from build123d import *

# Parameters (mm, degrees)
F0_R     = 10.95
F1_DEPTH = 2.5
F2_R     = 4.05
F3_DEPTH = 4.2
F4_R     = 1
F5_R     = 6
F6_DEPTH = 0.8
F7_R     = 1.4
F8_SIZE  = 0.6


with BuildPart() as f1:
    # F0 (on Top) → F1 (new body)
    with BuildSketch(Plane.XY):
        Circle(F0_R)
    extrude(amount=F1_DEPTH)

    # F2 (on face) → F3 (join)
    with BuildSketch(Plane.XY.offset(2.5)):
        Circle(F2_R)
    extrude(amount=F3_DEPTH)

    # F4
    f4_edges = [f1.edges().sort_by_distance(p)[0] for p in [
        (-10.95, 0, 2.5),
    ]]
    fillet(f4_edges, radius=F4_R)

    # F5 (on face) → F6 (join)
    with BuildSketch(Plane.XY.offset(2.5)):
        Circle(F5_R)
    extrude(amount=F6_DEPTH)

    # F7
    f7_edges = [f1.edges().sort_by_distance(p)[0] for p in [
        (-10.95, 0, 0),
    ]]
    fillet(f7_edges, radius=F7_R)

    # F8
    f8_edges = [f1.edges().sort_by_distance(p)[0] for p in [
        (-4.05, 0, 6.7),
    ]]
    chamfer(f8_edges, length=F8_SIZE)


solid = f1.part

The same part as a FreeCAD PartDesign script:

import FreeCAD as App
import Part
import Sketcher
Q = App.Units.Quantity


def edges_at(feature, points):
    """Names of the edges that pass closest to the given points."""
    edges = feature.Shape.Edges
    near = lambda p: min(range(len(edges)), key=lambda i: edges[i].distToShape(Part.Vertex(*p))[0])
    return sorted({f"Edge{near(p) + 1}" for p in points})

doc = App.newDocument("Part")
body = doc.addObject("PartDesign::Body", "Body")

# Sketch on XY plane
sketch1 = body.newObject("Sketcher::SketchObject", "Sketch")
sketch1.AttachmentSupport = (doc.getObject("XY_Plane"), [""])
sketch1.MapMode = "FlatFace"
sketch1.addGeometry(Part.Circle(App.Vector(0, 0, 0), App.Vector(0, 0, 1), 10.95), False)
sketch1.addConstraint(Sketcher.Constraint("Coincident", 0, 3, -1, 1))
sketch1.addConstraint(Sketcher.Constraint("Diameter", 0, Q("21.9 mm")))
pad1 = body.newObject("PartDesign::Pad", "Pad")
pad1.Profile = sketch1
pad1.Length = 2.5

# Sketch on XY plane
sketch2 = body.newObject("Sketcher::SketchObject", "Sketch001")
sketch2.AttachmentSupport = (doc.getObject("XY_Plane"), [""])
sketch2.MapMode = "FlatFace"
sketch2.AttachmentOffset = App.Placement(App.Vector(0, 0, 2.5), App.Rotation())
sketch2.addGeometry(Part.Circle(App.Vector(0, 0, 0), App.Vector(0, 0, 1), 4.05), False)
sketch2.addConstraint(Sketcher.Constraint("Coincident", 0, 3, -1, 1))
sketch2.addConstraint(Sketcher.Constraint("Diameter", 0, Q("8.1 mm")))
pad2 = body.newObject("PartDesign::Pad", "Pad001")
pad2.Profile = sketch2
pad2.Length = 4.2
doc.recompute()

fillet = body.newObject("PartDesign::Fillet", "Fillet")
fillet.Base = (pad2, edges_at(pad2, [(-10.95, 0, 2.5)]))
fillet.Radius = 1

# Sketch on XY plane
sketch3 = body.newObject("Sketcher::SketchObject", "Sketch002")
sketch3.AttachmentSupport = (doc.getObject("XY_Plane"), [""])
sketch3.MapMode = "FlatFace"
sketch3.AttachmentOffset = App.Placement(App.Vector(0, 0, 2.5), App.Rotation())
sketch3.addGeometry(Part.Circle(App.Vector(0, 0, 0), App.Vector(0, 0, 1), 6), False)
sketch3.addConstraint(Sketcher.Constraint("Coincident", 0, 3, -1, 1))
sketch3.addConstraint(Sketcher.Constraint("Diameter", 0, Q("12 mm")))
pad3 = body.newObject("PartDesign::Pad", "Pad002")
pad3.Profile = sketch3
pad3.Length = 0.8
doc.recompute()

fillet2 = body.newObject("PartDesign::Fillet", "Fillet001")
fillet2.Base = (pad3, edges_at(pad3, [(-10.95, 0, 0)]))
fillet2.Radius = 1.4
doc.recompute()

chamfer = body.newObject("PartDesign::Chamfer", "Chamfer")
chamfer.Base = (fillet2, edges_at(fillet2, [(-4.05, 0, 6.7)]))
chamfer.Size = 0.6

doc.recompute()
